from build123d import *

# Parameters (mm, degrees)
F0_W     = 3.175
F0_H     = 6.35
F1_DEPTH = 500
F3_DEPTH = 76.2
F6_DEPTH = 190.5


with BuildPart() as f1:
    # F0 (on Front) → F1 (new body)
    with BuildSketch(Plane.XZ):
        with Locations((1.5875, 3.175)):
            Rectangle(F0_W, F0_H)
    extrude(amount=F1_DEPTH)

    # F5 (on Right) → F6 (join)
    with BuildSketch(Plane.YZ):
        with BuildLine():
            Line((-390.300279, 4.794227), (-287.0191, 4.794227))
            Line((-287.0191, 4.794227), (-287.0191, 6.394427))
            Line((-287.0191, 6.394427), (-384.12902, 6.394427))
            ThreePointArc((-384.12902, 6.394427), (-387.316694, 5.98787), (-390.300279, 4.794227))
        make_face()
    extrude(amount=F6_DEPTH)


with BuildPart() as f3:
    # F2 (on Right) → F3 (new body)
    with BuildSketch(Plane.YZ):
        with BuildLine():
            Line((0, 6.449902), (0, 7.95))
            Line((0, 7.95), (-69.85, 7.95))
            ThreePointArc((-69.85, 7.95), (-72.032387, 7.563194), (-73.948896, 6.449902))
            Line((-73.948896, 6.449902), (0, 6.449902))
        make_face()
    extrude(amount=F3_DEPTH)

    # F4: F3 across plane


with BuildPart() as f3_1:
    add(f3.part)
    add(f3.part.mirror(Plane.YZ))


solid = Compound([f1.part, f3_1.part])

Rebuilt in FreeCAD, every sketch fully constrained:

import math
import FreeCAD as App
import Part
import Sketcher
Q = App.Units.Quantity

doc = App.newDocument("Part")
body = doc.addObject("PartDesign::Body", "Body")

# Sketch on XZ plane
sketch1 = doc.addObject("Sketcher::SketchObject", "Sketch")
body.addObject(sketch1)
sketch1.AttachmentSupport = (doc.XZ_Plane, [""])
sketch1.MapMode = "FlatFace"
sketch1.addGeometry([
    Part.LineSegment(App.Vector(0, 6.3, 0), App.Vector(0, 0, 0)),
    Part.LineSegment(App.Vector(0, 0, 0), App.Vector(3.2, 0, 0)),
    Part.LineSegment(App.Vector(3.2, 0, 0), App.Vector(3.2, 6.3, 0)),
    Part.LineSegment(App.Vector(3.2, 6.3, 0), App.Vector(0, 6.3, 0)),
], False)
sketch1.addConstraint([
    Sketcher.Constraint("Coincident", 0, 2, 1, 1),
    Sketcher.Constraint("Coincident", 1, 2, 2, 1),
    Sketcher.Constraint("Coincident", 2, 2, 3, 1),
    Sketcher.Constraint("Coincident", 3, 2, 0, 1),
    Sketcher.Constraint("Vertical", 0),
    Sketcher.Constraint("Horizontal", 1),
    Sketcher.Constraint("Vertical", 2),
    Sketcher.Constraint("Horizontal", 3),
    Sketcher.Constraint("Coincident", 0, 2, -1, 1),
    Sketcher.Constraint("DistanceY", 0, 2, 0, 1, Q("0.25 in")),
    Sketcher.Constraint("DistanceX", 1, 1, 1, 2, Q("0.125 in")),
])
pad1 = doc.addObject("PartDesign::Pad", "Pad")
body.addObject(pad1)
pad1.Profile = sketch1
pad1.Length = 500

# Sketch on YZ plane
sketch2 = doc.addObject("Sketcher::SketchObject", "Sketch001")
body.addObject(sketch2)
sketch2.AttachmentSupport = (doc.YZ_Plane, [""])
sketch2.MapMode = "FlatFace"
sketch2.addGeometry([
    Part.LineSegment(App.Vector(-390.3, 4.8, 0), App.Vector(-287, 4.8, 0)),
    Part.LineSegment(App.Vector(-287, 4.8, 0), App.Vector(-287, 6.4, 0)),
    Part.LineSegment(App.Vector(-287, 6.4, 0), App.Vector(-384.1, 6.4, 0)),
    Part.ArcOfCircle(Part.Circle(App.Vector(-384.1, -6.3, 0), App.Vector(0, 0, 1), 12.7), math.radians(90), math.radians(119)),
], False)
sketch2.addConstraint([
    Sketcher.Constraint("Coincident", 0, 2, 1, 1),
    Sketcher.Constraint("Coincident", 1, 2, 2, 1),
    Sketcher.Constraint("Tangent", 2, 2, 3, 1),
    Sketcher.Constraint("Coincident", 3, 2, 0, 1),
    Sketcher.Constraint("Horizontal", 0),
    Sketcher.Constraint("Vertical", 1),
    Sketcher.Constraint("Horizontal", 2),
    Sketcher.Constraint("DistanceY", 1, 1, 1, 2, Q("0.063 in")),
    Sketcher.Constraint("Radius", 3, Q("12.699991 mm")),
    Sketcher.Constraint("DistanceX", 0, 1, 0, 2, Q("103.281179 mm")),
    Sketcher.Constraint("DistanceX", 0, 2, -1, 1, Q("287.0191 mm")),
    Sketcher.Constraint("DistanceY", 3, 3, -1, 1, Q("6.305564 mm")),
])
pad2 = doc.addObject("PartDesign::Pad", "Pad001")
body.addObject(pad2)
pad2.Profile = sketch2
pad2.Length = Q("7.5 in")
body2 = doc.addObject("PartDesign::Body", "Body001")

# Sketch on YZ plane
sketch3 = doc.addObject("Sketcher::SketchObject", "Sketch002")
body2.addObject(sketch3)
sketch3.AttachmentSupport = (doc.getObject("YZ_Plane001"), [""])
sketch3.MapMode = "FlatFace"
sketch3.addGeometry([
    Part.LineSegment(App.Vector(0, 6.4, 0), App.Vector(0, 8, 0)),
    Part.LineSegment(App.Vector(0, 8, 0), App.Vector(-69.8, 8, 0)),
    Part.ArcOfCircle(Part.Circle(App.Vector(-69.8, 1.6, 0), App.Vector(0, 0, 1), 6.4), math.radians(90), math.radians(130)),
    Part.LineSegment(App.Vector(-73.9, 6.4, 0), App.Vector(0, 6.4, 0)),
], False)
sketch3.addConstraint([
    Sketcher.Constraint("Coincident", 0, 2, 1, 1),
    Sketcher.Constraint("Tangent", 1, 2, 2, 1),
    Sketcher.Constraint("Coincident", 2, 2, 3, 1),
    Sketcher.Constraint("Coincident", 3, 2, 0, 1),
    Sketcher.Constraint("Vertical", 0),
    Sketcher.Constraint("Horizontal", 1),
    Sketcher.Constraint("Horizontal", 3),
    Sketcher.Constraint("PointOnObject", 0, 2, -2),
    Sketcher.Constraint("Radius", 2, Q("0.2500002 in")),
    Sketcher.Constraint("DistanceX", 1, 2, 1, 1, Q("2.75 in")),
    Sketcher.Constraint("DistanceY", 0, 1, 0, 2, Q("1.500098 mm")),
    Sketcher.Constraint("DistanceY", -1, 1, 0, 2, Q("7.95 mm")),
])
pad3 = doc.addObject("PartDesign::Pad", "Pad002")
body2.addObject(pad3)
pad3.Profile = sketch3
pad3.Length = Q("3 in")
body3 = doc.addObject("PartDesign::Body", "Body002")
doc.recompute()

body3.BaseFeature = body2
doc.recompute()

mirroring = doc.addObject("Part::Mirroring", "Mirroring")
mirroring.Source = body2
mirroring.Base = App.Vector(0, 0, 0)
mirroring.Normal = App.Vector(1, 0, 0)
body4 = doc.addObject("PartDesign::Body", "Body003")
body4.BaseFeature = mirroring
boolean = doc.addObject("PartDesign::Boolean", "Boolean")
body3.addObject(boolean)
boolean.Type = "Fuse"
boolean.addObjects([body4])
doc.recompute()
mirroring.Visibility = False

doc.recompute()
